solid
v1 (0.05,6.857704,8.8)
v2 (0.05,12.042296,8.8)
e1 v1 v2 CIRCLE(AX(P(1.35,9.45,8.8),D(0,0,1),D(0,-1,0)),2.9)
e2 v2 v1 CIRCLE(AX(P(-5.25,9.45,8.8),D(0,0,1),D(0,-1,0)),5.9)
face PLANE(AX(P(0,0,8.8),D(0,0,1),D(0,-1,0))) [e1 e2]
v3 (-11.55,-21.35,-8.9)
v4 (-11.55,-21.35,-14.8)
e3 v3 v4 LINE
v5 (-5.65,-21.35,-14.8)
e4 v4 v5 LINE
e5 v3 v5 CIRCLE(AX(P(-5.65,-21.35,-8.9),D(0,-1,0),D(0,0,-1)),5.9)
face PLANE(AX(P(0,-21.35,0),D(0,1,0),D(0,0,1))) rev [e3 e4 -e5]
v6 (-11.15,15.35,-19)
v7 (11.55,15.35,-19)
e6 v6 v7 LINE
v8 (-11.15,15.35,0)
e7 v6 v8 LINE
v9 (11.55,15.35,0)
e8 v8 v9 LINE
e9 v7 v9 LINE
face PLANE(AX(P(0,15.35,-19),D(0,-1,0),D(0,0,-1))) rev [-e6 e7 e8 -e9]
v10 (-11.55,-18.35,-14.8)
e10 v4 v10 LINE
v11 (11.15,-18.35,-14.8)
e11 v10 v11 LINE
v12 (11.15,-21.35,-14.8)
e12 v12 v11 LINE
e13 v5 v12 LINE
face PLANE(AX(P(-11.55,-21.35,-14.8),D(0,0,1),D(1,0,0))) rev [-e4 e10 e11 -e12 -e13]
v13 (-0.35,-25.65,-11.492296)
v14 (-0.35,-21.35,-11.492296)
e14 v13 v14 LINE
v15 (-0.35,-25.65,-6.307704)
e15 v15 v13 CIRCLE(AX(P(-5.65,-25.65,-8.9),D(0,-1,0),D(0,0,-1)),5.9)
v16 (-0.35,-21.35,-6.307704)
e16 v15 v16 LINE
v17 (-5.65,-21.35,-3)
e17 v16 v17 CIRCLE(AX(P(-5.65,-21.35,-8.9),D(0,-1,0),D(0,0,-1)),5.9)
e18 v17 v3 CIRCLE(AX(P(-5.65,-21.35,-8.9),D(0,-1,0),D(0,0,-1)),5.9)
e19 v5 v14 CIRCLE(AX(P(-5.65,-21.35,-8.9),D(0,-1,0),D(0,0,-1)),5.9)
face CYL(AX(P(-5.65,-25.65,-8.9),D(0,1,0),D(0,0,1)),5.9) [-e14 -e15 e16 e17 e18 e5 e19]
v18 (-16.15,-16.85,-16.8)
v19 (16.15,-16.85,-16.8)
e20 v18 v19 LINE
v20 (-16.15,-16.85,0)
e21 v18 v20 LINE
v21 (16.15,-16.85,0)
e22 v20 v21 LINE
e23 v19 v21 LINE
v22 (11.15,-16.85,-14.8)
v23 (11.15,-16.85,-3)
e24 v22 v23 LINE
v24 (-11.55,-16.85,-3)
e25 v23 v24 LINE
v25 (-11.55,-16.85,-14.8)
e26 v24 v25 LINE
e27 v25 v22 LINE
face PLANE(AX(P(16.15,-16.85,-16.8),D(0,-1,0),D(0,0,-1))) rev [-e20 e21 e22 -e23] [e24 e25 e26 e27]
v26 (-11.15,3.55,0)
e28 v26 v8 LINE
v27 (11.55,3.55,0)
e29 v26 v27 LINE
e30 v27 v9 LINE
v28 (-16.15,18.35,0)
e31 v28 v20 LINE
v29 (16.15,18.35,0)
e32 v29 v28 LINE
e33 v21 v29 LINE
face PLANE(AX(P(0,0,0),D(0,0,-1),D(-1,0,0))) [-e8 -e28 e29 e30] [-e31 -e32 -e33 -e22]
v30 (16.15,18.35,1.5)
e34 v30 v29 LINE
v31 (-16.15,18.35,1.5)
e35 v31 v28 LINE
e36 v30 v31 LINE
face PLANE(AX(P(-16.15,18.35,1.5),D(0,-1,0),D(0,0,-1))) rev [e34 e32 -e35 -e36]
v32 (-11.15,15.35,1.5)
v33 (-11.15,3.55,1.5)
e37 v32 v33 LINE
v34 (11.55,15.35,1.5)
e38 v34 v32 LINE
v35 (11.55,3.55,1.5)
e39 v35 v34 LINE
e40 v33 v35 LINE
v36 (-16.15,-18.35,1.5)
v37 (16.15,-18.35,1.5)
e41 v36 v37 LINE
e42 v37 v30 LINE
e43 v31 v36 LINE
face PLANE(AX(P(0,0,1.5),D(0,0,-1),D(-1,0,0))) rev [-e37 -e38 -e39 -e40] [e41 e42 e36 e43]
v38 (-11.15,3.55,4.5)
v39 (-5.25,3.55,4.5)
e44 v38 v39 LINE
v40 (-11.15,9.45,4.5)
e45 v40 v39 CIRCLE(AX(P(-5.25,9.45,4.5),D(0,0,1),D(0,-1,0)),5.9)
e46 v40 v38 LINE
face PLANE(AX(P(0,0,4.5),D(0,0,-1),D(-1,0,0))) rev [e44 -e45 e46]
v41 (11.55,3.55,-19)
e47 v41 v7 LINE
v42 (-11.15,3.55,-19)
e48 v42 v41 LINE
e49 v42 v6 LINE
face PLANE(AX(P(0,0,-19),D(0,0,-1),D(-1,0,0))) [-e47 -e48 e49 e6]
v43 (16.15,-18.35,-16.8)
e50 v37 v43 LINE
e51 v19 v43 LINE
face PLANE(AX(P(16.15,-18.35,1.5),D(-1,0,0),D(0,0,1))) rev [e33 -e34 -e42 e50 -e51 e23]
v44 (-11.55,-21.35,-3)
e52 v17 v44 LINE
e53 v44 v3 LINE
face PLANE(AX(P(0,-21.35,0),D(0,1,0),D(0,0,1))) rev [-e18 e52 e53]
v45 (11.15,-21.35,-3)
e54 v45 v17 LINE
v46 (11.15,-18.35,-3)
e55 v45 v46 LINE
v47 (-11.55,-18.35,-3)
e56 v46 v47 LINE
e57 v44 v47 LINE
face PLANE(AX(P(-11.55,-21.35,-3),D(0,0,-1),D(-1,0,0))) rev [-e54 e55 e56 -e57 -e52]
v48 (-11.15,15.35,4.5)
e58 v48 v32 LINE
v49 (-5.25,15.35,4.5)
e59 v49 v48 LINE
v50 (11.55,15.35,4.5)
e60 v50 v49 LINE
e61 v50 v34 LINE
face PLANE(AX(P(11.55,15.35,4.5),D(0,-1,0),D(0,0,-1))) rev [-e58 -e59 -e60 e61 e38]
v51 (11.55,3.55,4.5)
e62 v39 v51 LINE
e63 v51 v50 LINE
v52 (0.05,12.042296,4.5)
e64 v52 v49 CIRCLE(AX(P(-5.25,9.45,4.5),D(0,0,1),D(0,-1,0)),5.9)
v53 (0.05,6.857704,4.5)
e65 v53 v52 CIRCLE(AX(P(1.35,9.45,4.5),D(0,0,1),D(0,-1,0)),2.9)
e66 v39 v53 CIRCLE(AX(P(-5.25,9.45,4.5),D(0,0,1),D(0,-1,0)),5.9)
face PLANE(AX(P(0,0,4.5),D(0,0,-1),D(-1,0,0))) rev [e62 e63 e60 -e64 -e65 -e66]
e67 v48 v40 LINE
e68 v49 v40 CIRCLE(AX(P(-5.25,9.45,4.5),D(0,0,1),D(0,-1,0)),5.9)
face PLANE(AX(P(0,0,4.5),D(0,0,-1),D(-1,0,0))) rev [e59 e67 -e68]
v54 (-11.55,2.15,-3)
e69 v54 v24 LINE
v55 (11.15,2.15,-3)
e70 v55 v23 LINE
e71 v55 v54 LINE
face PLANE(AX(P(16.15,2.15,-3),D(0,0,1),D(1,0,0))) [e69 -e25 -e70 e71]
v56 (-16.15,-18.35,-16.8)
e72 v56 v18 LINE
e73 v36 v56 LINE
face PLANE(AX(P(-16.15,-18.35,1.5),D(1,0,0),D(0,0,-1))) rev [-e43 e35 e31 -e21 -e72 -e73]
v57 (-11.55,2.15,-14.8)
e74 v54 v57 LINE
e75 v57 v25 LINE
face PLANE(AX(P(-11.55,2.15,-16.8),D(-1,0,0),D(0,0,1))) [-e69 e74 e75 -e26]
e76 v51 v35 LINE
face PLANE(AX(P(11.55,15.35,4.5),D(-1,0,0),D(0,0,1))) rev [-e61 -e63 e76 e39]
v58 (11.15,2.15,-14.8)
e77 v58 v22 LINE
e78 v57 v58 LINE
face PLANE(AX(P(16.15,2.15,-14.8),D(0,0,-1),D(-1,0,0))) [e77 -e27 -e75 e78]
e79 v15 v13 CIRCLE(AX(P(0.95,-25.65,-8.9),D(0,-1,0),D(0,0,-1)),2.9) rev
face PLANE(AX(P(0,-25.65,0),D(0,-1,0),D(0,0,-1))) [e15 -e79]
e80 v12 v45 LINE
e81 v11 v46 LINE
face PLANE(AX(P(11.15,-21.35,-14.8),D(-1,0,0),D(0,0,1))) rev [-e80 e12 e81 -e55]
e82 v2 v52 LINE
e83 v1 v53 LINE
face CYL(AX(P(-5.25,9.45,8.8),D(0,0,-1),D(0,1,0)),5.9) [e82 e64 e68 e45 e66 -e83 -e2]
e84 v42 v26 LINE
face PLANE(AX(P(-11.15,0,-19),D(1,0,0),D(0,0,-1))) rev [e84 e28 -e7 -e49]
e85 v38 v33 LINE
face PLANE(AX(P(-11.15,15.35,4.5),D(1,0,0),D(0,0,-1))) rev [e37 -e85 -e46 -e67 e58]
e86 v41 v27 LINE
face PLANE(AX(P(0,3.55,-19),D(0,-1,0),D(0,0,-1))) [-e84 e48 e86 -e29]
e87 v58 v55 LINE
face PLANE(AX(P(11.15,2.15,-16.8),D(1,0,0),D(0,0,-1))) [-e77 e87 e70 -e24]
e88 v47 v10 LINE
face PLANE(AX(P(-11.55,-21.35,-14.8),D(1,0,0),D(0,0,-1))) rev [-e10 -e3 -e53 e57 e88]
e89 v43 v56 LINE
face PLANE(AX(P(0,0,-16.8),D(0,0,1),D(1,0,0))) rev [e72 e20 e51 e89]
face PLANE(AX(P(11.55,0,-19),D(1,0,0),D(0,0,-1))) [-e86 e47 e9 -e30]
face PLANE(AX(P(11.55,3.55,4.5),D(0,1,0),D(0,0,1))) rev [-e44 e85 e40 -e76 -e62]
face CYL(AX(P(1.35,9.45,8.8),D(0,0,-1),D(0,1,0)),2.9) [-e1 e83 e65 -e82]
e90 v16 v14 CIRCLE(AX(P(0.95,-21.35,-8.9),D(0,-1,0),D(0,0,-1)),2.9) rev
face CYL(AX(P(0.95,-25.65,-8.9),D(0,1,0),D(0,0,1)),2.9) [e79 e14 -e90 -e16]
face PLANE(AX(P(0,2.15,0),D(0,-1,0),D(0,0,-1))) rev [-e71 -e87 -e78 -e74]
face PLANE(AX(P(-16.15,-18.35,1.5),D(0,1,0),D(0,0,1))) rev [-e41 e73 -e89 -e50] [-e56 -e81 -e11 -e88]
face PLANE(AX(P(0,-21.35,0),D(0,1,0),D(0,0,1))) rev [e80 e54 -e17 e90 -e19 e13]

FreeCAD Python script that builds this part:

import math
import FreeCAD as App
import Part
import Sketcher

V = App.Vector
Q = App.Units.Quantity

doc = App.newDocument("Part")
body = doc.addObject("PartDesign::Body", "Body")

sketch1 = body.newObject("Sketcher::SketchObject", "Sketch")
sketch1.AttachmentSupport = (doc.getObject("XY_Plane"), [""])
sketch1.MapMode = "FlatFace"
sketch1.addGeometry(Part.LineSegment(V(-16, 18, 0), V(-16, -18, 0)), False)
sketch1.addGeometry(Part.LineSegment(V(-16, -18, 0), V(16, -18, 0)), False)
sketch1.addGeometry(Part.LineSegment(V(16, -18, 0), V(16, 18, 0)), False)
sketch1.addGeometry(Part.LineSegment(V(16, 18, 0), V(-16, 18, 0)), False)
sketch1.addConstraint(Sketcher.Constraint("Coincident", 0, 2, 1, 1))
sketch1.addConstraint(Sketcher.Constraint("Coincident", 1, 2, 2, 1))
sketch1.addConstraint(Sketcher.Constraint("Coincident", 2, 2, 3, 1))
sketch1.addConstraint(Sketcher.Constraint("Coincident", 3, 2, 0, 1))
sketch1.addConstraint(Sketcher.Constraint("Vertical", 0))
sketch1.addConstraint(Sketcher.Constraint("Horizontal", 1))
sketch1.addConstraint(Sketcher.Constraint("Vertical", 2))
sketch1.addConstraint(Sketcher.Constraint("Horizontal", 3))
sketch1.addConstraint(Sketcher.Constraint("Symmetric", 0, 2, 2, 2, -1, 1))
sketch1.addConstraint(Sketcher.Constraint("DistanceX", 1, 1, 1, 2, Q("32.3 mm")))
sketch1.addConstraint(Sketcher.Constraint("DistanceY", 0, 2, 0, 1, Q("36.7 mm")))
pad1 = body.newObject("PartDesign::Pad", "Pad")
pad1.Profile = sketch1
pad1.Length = 1.5

sketch2 = body.newObject("Sketcher::SketchObject", "Sketch001")
sketch2.AttachmentSupport = (doc.getObject("XY_Plane"), [""])
sketch2.MapMode = "FlatFace"
sketch2.addGeometry(Part.LineSegment(V(16.1, -16.9, 0), V(16.1, -18.4, 0)), False)
sketch2.addGeometry(Part.LineSegment(V(16.1, -18.4, 0), V(-16.1, -18.4, 0)), False)
sketch2.addGeometry(Part.LineSegment(V(-16.1, -18.4, 0), V(-16.1, -16.9, 0)), False)
sketch2.addGeometry(Part.LineSegment(V(-16.1, -16.9, 0), V(16.1, -16.9, 0)), False)
sketch2.addConstraint(Sketcher.Constraint("Coincident", 0, 2, 1, 1))
sketch2.addConstraint(Sketcher.Constraint("Coincident", 1, 2, 2, 1))
sketch2.addConstraint(Sketcher.Constraint("Coincident", 2, 2, 3, 1))
sketch2.addConstraint(Sketcher.Constraint("Coincident", 3, 2, 0, 1))
sketch2.addConstraint(Sketcher.Constraint("Vertical", 0))
sketch2.addConstraint(Sketcher.Constraint("Horizontal", 1))
sketch2.addConstraint(Sketcher.Constraint("Vertical", 2))
sketch2.addConstraint(Sketcher.Constraint("Horizontal", 3))
sketch2.addConstraint(Sketcher.Constraint("DistanceX", 1, 2, 1, 1, Q("32.3 mm")))
sketch2.addConstraint(Sketcher.Constraint("DistanceY", 0, 2, 0, 1, Q("1.5 mm")))
sketch2.addConstraint(Sketcher.Constraint("DistanceX", -1, 1, 0, 2, Q("16.15 mm")))
sketch2.addConstraint(Sketcher.Constraint("DistanceY", 0, 2, -1, 1, Q("18.35 mm")))
pad2 = body.newObject("PartDesign::Pad", "Pad001")
pad2.Profile = sketch2
pad2.Length = 16.8
pad2.Reversed = True

sketch3 = body.newObject("Sketcher::SketchObject", "Sketch002")
sketch3.AttachmentSupport = (doc.getObject("XZ_Plane"), [""])
sketch3.MapMode = "FlatFace"
sketch3.AttachmentOffset = App.Placement(V(0, 0, 18.35), App.Rotation())
sketch3.addGeometry(Part.LineSegment(V(-12, -3, 0), V(-12, -15, 0)), False)
sketch3.addGeometry(Part.LineSegment(V(-12, -15, 0), V(11, -15, 0)), False)
sketch3.addGeometry(Part.LineSegment(V(11, -15, 0), V(11, -3, 0)), False)
sketch3.addGeometry(Part.LineSegment(V(11, -3, 0), V(-12, -3, 0)), False)
sketch3.addConstraint(Sketcher.Constraint("Coincident", 0, 2, 1, 1))
sketch3.addConstraint(Sketcher.Constraint("Coincident", 1, 2, 2, 1))
sketch3.addConstraint(Sketcher.Constraint("Coincident", 2, 2, 3, 1))
sketch3.addConstraint(Sketcher.Constraint("Coincident", 3, 2, 0, 1))
sketch3.addConstraint(Sketcher.Constraint("Vertical", 0))
sketch3.addConstraint(Sketcher.Constraint("Horizontal", 1))
sketch3.addConstraint(Sketcher.Constraint("Vertical", 2))
sketch3.addConstraint(Sketcher.Constraint("Horizontal", 3))
sketch3.addConstraint(Sketcher.Constraint("DistanceX", 1, 1, 1, 2, Q("22.7 mm")))
sketch3.addConstraint(Sketcher.Constraint("DistanceY", 0, 2, 0, 1, Q("11.8 mm")))
sketch3.addConstraint(Sketcher.Constraint("DistanceY", 2, 2, -1, 1, Q("3 mm")))
sketch3.addConstraint(Sketcher.Constraint("DistanceX", 0, 2, -1, 1, Q("11.55 mm")))
pad3 = body.newObject("PartDesign::Pad", "Pad002")
pad3.Profile = sketch3
pad3.Length = 3

sketch4 = body.newObject("Sketcher::SketchObject", "Sketch003")
sketch4.AttachmentSupport = (doc.getObject("XZ_Plane"), [""])
sketch4.MapMode = "FlatFace"
sketch4.AttachmentOffset = App.Placement(V(0, 0, 21.35), App.Rotation())
sketch4.addGeometry(Part.ArcOfCircle(Part.Circle(V(0.9, -8.9, 0), V(0, 0, 1), 2.9), math.radians(-117), math.radians(117)), False)
sketch4.addGeometry(Part.ArcOfCircle(Part.Circle(V(-5.7, -8.9, 0), V(0, 0, 1), 5.9), math.radians(26), math.radians(334)), False)
sketch4.addConstraint(Sketcher.Constraint("Coincident", 0, 1, 1, 2))
sketch4.addConstraint(Sketcher.Constraint("Coincident", 1, 1, 0, 2))
sketch4.addConstraint(Sketcher.Constraint("Horizontal", 0, 3, 1, 3))
sketch4.addConstraint(Sketcher.Constraint("Radius", 0, Q("2.9 mm")))
sketch4.addConstraint(Sketcher.Constraint("Radius", 1, Q("5.9 mm")))
sketch4.addConstraint(Sketcher.Constraint("DistanceY", 0, 3, -1, 1, Q("8.9 mm")))
sketch4.addConstraint(Sketcher.Constraint("DistanceX", 1, 3, 0, 3, Q("6.6 mm")))
sketch4.addConstraint(Sketcher.Constraint("DistanceX", -1, 1, 0, 3, Q("0.95 mm")))
pad4 = body.newObject("PartDesign::Pad", "Pad003")
pad4.Profile = sketch4
pad4.Length = 4.3

sketch5 = body.newObject("Sketcher::SketchObject", "Sketch004")
sketch5.AttachmentSupport = (doc.getObject("XY_Plane"), [""])
sketch5.MapMode = "FlatFace"
sketch5.AttachmentOffset = App.Placement(V(0, 0, 1.5), App.Rotation())
sketch5.addGeometry(Part.LineSegment(V(12, 4, 0), V(12, 15, 0)), False)
sketch5.addGeometry(Part.LineSegment(V(12, 15, 0), V(-11, 15, 0)), False)
sketch5.addGeometry(Part.LineSegment(V(-11, 15, 0), V(-11, 4, 0)), False)
sketch5.addGeometry(Part.LineSegment(V(-11, 4, 0), V(12, 4, 0)), False)
sketch5.addConstraint(Sketcher.Constraint("Coincident", 0, 2, 1, 1))
sketch5.addConstraint(Sketcher.Constraint("Coincident", 1, 2, 2, 1))
sketch5.addConstraint(Sketcher.Constraint("Coincident", 2, 2, 3, 1))
sketch5.addConstraint(Sketcher.Constraint("Coincident", 3, 2, 0, 1))
sketch5.addConstraint(Sketcher.Constraint("Vertical", 0))
sketch5.addConstraint(Sketcher.Constraint("Horizontal", 1))
sketch5.addConstraint(Sketcher.Constraint("Vertical", 2))
sketch5.addConstraint(Sketcher.Constraint("Horizontal", 3))
sketch5.addConstraint(Sketcher.Constraint("DistanceX", 1, 2, 1, 1, Q("22.7 mm")))
sketch5.addConstraint(Sketcher.Constraint("DistanceY", 0, 1, 0, 2, Q("11.8 mm")))
sketch5.addConstraint(Sketcher.Constraint("DistanceX", -1, 1, 0, 2, Q("11.55 mm")))
sketch5.addConstraint(Sketcher.Constraint("DistanceY", -1, 1, 0, 2, Q("15.35 mm")))
pad5 = body.newObject("PartDesign::Pad", "Pad004")
pad5.Profile = sketch5
pad5.Length = 3

sketch6 = body.newObject("Sketcher::SketchObject", "Sketch005")
sketch6.AttachmentSupport = (doc.getObject("XY_Plane"), [""])
sketch6.MapMode = "FlatFace"
sketch6.AttachmentOffset = App.Placement(V(0, 0, 4.5), App.Rotation())
sketch6.addGeometry(Part.ArcOfCircle(Part.Circle(V(1.4, 9.5, 0), V(0, 0, 1), 2.9), math.radians(-117), math.radians(117)), False)
sketch6.addGeometry(Part.ArcOfCircle(Part.Circle(V(-5.2, 9.4, 0), V(0, 0, 1), 5.9), math.radians(26), math.radians(334)), False)
sketch6.addConstraint(Sketcher.Constraint("Coincident", 0, 1, 1, 2))
sketch6.addConstraint(Sketcher.Constraint("Coincident", 1, 1, 0, 2))
sketch6.addConstraint(Sketcher.Constraint("Horizontal", 0, 3, 1, 3))
sketch6.addConstraint(Sketcher.Constraint("Radius", 0, Q("2.9 mm")))
sketch6.addConstraint(Sketcher.Constraint("Radius", 1, Q("5.9 mm")))
sketch6.addConstraint(Sketcher.Constraint("DistanceX", 1, 3, 0, 3, Q("6.6 mm")))
sketch6.addConstraint(Sketcher.Constraint("DistanceX", -1, 1, 0, 3, Q("1.35 mm")))
sketch6.addConstraint(Sketcher.Constraint("DistanceY", -1, 1, 0, 3, Q("9.45 mm")))
pad6 = body.newObject("PartDesign::Pad", "Pad005")
pad6.Profile = sketch6
pad6.Length = 4.3

sketch7 = body.newObject("Sketcher::SketchObject", "Sketch006")
sketch7.AttachmentSupport = (doc.getObject("XY_Plane"), [""])
sketch7.MapMode = "FlatFace"
sketch7.addGeometry(Part.LineSegment(V(12, 4, 0), V(12, 15, 0)), False)
sketch7.addGeometry(Part.LineSegment(V(12, 15, 0), V(-11, 15, 0)), False)
sketch7.addGeometry(Part.LineSegment(V(-11, 15, 0), V(-11, 4, 0)), False)
sketch7.addGeometry(Part.LineSegment(V(-11, 4, 0), V(12, 4, 0)), False)
sketch7.addConstraint(Sketcher.Constraint("Coincident", 0, 2, 1, 1))
sketch7.addConstraint(Sketcher.Constraint("Coincident", 1, 2, 2, 1))
sketch7.addConstraint(Sketcher.Constraint("Coincident", 2, 2, 3, 1))
sketch7.addConstraint(Sketcher.Constraint("Coincident", 3, 2, 0, 1))
sketch7.addConstraint(Sketcher.Constraint("Vertical", 0))
sketch7.addConstraint(Sketcher.Constraint("Horizontal", 1))
sketch7.addConstraint(Sketcher.Constraint("Vertical", 2))
sketch7.addConstraint(Sketcher.Constraint("Horizontal", 3))
sketch7.addConstraint(Sketcher.Constraint("DistanceX", 1, 2, 1, 1, Q("22.7 mm")))
sketch7.addConstraint(Sketcher.Constraint("DistanceY", 0, 1, 0, 2, Q("11.8 mm")))
sketch7.addConstraint(Sketcher.Constraint("DistanceX", -1, 1, 0, 2, Q("11.55 mm")))
sketch7.addConstraint(Sketcher.Constraint("DistanceY", -1, 1, 0, 2, Q("15.35 mm")))
pad7 = body.newObject("PartDesign::Pad", "Pad006")
pad7.Profile = sketch7
pad7.Length = 19
pad7.Reversed = True

sketch8 = body.newObject("Sketcher::SketchObject", "Sketch007")
sketch8.AttachmentSupport = (doc.getObject("XZ_Plane"), [""])
sketch8.MapMode = "FlatFace"
sketch8.AttachmentOffset = App.Placement(V(0, 0, -2.15), App.Rotation())
sketch8.addGeometry(Part.LineSegment(V(-12, -3, 0), V(-12, -15, 0)), False)
sketch8.addGeometry(Part.LineSegment(V(-12, -15, 0), V(11, -15, 0)), False)
sketch8.addGeometry(Part.LineSegment(V(11, -15, 0), V(11, -3, 0)), False)
sketch8.addGeometry(Part.LineSegment(V(11, -3, 0), V(-12, -3, 0)), False)
sketch8.addConstraint(Sketcher.Constraint("Coincident", 0, 2, 1, 1))
sketch8.addConstraint(Sketcher.Constraint("Coincident", 1, 2, 2, 1))
sketch8.addConstraint(Sketcher.Constraint("Coincident", 2, 2, 3, 1))
sketch8.addConstraint(Sketcher.Constraint("Coincident", 3, 2, 0, 1))
sketch8.addConstraint(Sketcher.Constraint("Vertical", 0))
sketch8.addConstraint(Sketcher.Constraint("Horizontal", 1))
sketch8.addConstraint(Sketcher.Constraint("Vertical", 2))
sketch8.addConstraint(Sketcher.Constraint("Horizontal", 3))
sketch8.addConstraint(Sketcher.Constraint("DistanceX", 1, 1, 1, 2, Q("22.7 mm")))
sketch8.addConstraint(Sketcher.Constraint("DistanceY", 0, 2, 0, 1, Q("11.8 mm")))
sketch8.addConstraint(Sketcher.Constraint("DistanceY", 2, 2, -1, 1, Q("3 mm")))
sketch8.addConstraint(Sketcher.Constraint("DistanceX", 0, 2, -1, 1, Q("11.55 mm")))
pad8 = body.newObject("PartDesign::Pad", "Pad007")
pad8.Profile = sketch8
pad8.Length = 19

doc.recompute()
